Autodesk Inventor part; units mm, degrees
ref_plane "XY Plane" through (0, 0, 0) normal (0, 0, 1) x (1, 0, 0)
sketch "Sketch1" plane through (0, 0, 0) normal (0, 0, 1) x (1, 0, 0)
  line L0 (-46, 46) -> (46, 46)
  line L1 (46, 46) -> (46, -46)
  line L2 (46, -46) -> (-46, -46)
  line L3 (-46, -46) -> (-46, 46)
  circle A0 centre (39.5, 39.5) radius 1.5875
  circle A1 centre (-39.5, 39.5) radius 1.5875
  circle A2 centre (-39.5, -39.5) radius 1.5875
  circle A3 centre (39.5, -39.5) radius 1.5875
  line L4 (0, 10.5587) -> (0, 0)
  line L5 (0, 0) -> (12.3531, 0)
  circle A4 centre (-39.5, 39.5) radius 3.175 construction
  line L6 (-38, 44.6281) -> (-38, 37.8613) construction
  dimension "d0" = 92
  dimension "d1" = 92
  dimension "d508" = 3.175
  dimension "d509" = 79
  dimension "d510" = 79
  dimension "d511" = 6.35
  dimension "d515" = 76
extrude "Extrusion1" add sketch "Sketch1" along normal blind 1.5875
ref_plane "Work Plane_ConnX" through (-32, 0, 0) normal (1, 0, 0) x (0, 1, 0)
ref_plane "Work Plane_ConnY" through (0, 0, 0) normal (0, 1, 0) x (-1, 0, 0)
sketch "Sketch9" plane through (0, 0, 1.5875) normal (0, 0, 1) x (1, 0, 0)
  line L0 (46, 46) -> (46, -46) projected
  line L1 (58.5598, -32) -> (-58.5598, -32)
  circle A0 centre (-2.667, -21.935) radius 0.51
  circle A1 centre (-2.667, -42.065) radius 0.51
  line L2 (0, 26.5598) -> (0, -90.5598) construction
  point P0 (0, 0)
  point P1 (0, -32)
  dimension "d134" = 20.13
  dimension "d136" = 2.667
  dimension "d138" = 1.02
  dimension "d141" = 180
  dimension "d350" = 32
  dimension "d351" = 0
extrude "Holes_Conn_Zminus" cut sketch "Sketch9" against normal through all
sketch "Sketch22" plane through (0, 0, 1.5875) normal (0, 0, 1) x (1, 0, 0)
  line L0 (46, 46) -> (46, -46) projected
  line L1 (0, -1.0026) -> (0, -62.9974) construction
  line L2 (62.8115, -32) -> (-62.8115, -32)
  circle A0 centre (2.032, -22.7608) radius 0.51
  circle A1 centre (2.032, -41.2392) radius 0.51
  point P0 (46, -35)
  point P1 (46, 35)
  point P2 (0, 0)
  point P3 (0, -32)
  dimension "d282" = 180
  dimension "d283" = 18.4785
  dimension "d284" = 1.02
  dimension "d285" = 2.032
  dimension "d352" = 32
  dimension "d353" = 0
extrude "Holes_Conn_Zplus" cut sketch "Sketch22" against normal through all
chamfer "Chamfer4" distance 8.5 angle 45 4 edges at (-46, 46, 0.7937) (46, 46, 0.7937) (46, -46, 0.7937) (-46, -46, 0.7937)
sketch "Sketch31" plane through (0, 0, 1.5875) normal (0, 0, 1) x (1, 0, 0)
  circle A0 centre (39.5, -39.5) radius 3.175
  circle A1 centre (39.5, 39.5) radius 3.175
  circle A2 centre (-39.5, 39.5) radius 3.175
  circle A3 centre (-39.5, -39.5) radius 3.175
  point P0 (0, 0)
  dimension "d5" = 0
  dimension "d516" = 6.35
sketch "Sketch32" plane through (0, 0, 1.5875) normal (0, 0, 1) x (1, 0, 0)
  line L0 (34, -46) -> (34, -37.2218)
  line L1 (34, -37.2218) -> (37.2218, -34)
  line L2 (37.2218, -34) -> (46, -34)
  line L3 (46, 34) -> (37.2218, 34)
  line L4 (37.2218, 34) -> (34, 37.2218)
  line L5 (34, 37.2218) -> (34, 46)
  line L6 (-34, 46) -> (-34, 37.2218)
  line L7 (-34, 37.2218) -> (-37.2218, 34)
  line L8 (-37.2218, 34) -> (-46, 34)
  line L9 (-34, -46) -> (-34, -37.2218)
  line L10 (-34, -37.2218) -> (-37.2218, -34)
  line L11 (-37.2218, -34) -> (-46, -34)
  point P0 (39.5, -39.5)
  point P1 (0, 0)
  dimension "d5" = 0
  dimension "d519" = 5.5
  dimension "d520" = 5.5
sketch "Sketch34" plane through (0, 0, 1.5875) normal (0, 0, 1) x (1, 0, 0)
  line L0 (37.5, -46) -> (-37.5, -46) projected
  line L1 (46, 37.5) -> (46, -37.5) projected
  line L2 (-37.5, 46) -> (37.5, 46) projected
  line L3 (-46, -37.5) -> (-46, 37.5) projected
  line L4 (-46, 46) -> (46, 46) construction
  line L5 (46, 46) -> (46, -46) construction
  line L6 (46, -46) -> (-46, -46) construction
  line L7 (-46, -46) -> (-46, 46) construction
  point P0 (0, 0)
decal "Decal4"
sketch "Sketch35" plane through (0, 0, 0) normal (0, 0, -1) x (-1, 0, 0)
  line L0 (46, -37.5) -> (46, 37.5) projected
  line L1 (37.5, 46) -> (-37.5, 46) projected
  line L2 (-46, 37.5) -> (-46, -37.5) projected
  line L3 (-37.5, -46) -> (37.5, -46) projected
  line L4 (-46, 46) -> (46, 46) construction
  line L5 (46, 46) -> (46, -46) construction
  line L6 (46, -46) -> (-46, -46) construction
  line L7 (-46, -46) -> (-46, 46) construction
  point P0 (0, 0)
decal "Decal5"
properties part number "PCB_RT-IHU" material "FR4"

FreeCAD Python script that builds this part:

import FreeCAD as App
import Part
import Sketcher
from FreeCAD import Vector
Q = App.Units.Quantity


def edges_at(feature, points):
    """Names of the edges that pass closest to the given points."""
    edges = feature.Shape.Edges
    near = lambda p: min(range(len(edges)), key=lambda i: edges[i].distToShape(Part.Vertex(*p))[0])
    return sorted({f"Edge{near(p) + 1}" for p in points})


def add_polygon(sketch, points):
    """Adds a closed chain of lines whose ends are joined by coincident constraints."""
    first, n = sketch.GeometryCount, len(points)
    for a, b in zip(points, points[1:] + points[:1]):
        sketch.addGeometry(Part.LineSegment(App.Vector(*a, 0), App.Vector(*b, 0)), False)
    for i in range(n):
        sketch.addConstraint(Sketcher.Constraint("Coincident", first + i, 2, first + (i + 1) % n, 1))

doc = App.newDocument("Part")
params = doc.addObject("Spreadsheet::Sheet", "Params")
for row, (alias, value) in enumerate([
    ("sketch1_width", "92 mm"),
    ("pad1_length", "1.5875 mm"),
    ("sketch2_diameter", "1.02 mm"),
    ("sketch3_diameter", "1.02 mm"),
    ("chamfer_size", "8.5 mm"),
], start=1):
    params.set(f"A{row}", alias)
    params.set(f"B{row}", "=" + value)
    params.setAlias(f"B{row}", alias)

body = doc.addObject("PartDesign::Body", "Body")

# Sketch on XY plane
sketch1 = doc.addObject("Sketcher::SketchObject", "Sketch")
body.addObject(sketch1)
sketch1.AttachmentSupport = (doc.XY_Plane, [""])
sketch1.MapMode = "FlatFace"
add_polygon(sketch1, [(46, 46), (-46, 46), (-46, -46), (46, -46)])  # lines 0-3
sketch1.addGeometry(Part.Circle(Vector(-39.5, -39.5, 0), Vector(0, 0, 1), 1.5875), False)  # 4
sketch1.addGeometry(Part.Circle(Vector(39.5, -39.5, 0), Vector(0, 0, 1), 1.5875), False)  # 5
sketch1.addGeometry(Part.Circle(Vector(-39.5, 39.5, 0), Vector(0, 0, 1), 1.5875), False)  # 6
sketch1.addGeometry(Part.Circle(Vector(39.5, 39.5, 0), Vector(0, 0, 1), 1.5875), False)  # 7
sketch1.addConstraint([
    Sketcher.Constraint("Horizontal", 0),
    Sketcher.Constraint("Vertical", 1),
    Sketcher.Constraint("Horizontal", 2),
    Sketcher.Constraint("Vertical", 3),
    Sketcher.Constraint("Equal", 4, 5),
    Sketcher.Constraint("Equal", 5, 6),
    Sketcher.Constraint("Equal", 6, 7),
    Sketcher.Constraint("Symmetric", 5, 3, 6, 3, -1, 1),
    Sketcher.Constraint("Symmetric", 4, 3, 7, 3, -1, 1),
    Sketcher.Constraint("Symmetric", 0, 2, 2, 2, -1, 1),
    Sketcher.Constraint("Symmetric", 4, 3, 5, 3, -2),
    Sketcher.Constraint("Equal", 2, 1),
    Sketcher.Constraint("DistanceX", 0, 2, 0, 1, Q("92 mm")),
    Sketcher.Constraint("Diameter", 4, Q("3.175 mm")),
    Sketcher.Constraint("DistanceX", 4, 3, 5, 3, Q("79 mm")),
    Sketcher.Constraint("DistanceY", 4, 3, 6, 3, Q("79 mm")),
])
sketch1.setExpression("Constraints[16]", "Params.sketch1_width")
pad1 = doc.addObject("PartDesign::Pad", "Pad")
body.addObject(pad1)
pad1.Profile = sketch1
pad1.setExpression("Length", "Params.pad1_length")

# Sketch on XY plane
sketch2 = doc.addObject("Sketcher::SketchObject", "Sketch001")
body.addObject(sketch2)
sketch2.AttachmentSupport = (doc.XY_Plane, [""])
sketch2.MapMode = "FlatFace"
sketch2.AttachmentOffset = App.Placement(Vector(0, 0, 1.5875), App.Rotation())
sketch2.addGeometry([
    Part.Circle(Vector(-2.667, -21.935, 0), Vector(0, 0, 1), 0.51),
    Part.Circle(Vector(-2.667, -42.065, 0), Vector(0, 0, 1), 0.51),
], False)
sketch2.addConstraint([
    Sketcher.Constraint("Equal", 0, 1),
    Sketcher.Constraint("Vertical", 0, 3, 1, 3),
    Sketcher.Constraint("Diameter", 0, Q("1.02 mm")),
    Sketcher.Constraint("DistanceY", 1, 3, 0, 3, Q("20.13 mm")),
    Sketcher.Constraint("DistanceX", 0, 3, -1, 1, Q("2.667 mm")),
    Sketcher.Constraint("DistanceY", 0, 3, -1, 1, Q("21.935 mm")),
])
sketch2.setExpression("Constraints[2]", "Params.sketch2_diameter")
pocket1 = doc.addObject("PartDesign::Pocket", "Pocket")
body.addObject(pocket1)
pocket1.Profile = sketch2
pocket1.Type = "ThroughAll"

# Sketch on XY plane
sketch3 = doc.addObject("Sketcher::SketchObject", "Sketch002")
body.addObject(sketch3)
sketch3.AttachmentSupport = (doc.XY_Plane, [""])
sketch3.MapMode = "FlatFace"
sketch3.AttachmentOffset = App.Placement(Vector(0, 0, 1.5875), App.Rotation())
sketch3.addGeometry([
    Part.Circle(Vector(2.032, -22.7608, 0), Vector(0, 0, 1), 0.51),
    Part.Circle(Vector(2.032, -41.2392, 0), Vector(0, 0, 1), 0.51),
], False)
sketch3.addConstraint([
    Sketcher.Constraint("Equal", 0, 1),
    Sketcher.Constraint("Vertical", 0, 3, 1, 3),
    Sketcher.Constraint("Diameter", 0, Q("1.02 mm")),
    Sketcher.Constraint("DistanceX", -1, 1, 0, 3, Q("2.032 mm")),
    Sketcher.Constraint("DistanceY", 1, 3, 0, 3, Q("18.4784 mm")),
    Sketcher.Constraint("DistanceY", 0, 3, -1, 1, Q("22.7608 mm")),
])
sketch3.setExpression("Constraints[2]", "Params.sketch3_diameter")
pocket2 = doc.addObject("PartDesign::Pocket", "Pocket001")
body.addObject(pocket2)
pocket2.Profile = sketch3
pocket2.Type = "ThroughAll"
doc.recompute()

chamfer = doc.addObject("PartDesign::Chamfer", "Chamfer")
body.addObject(chamfer)
chamfer.Base = (pocket2, edges_at(pocket2, [
    (-46, 46, 0.794),
    (46, 46, 0.794),
    (46, -46, 0.794),
    (-46, -46, 0.794),
]))
chamfer.setExpression("Size", "Params.chamfer_size")

doc.recompute()
